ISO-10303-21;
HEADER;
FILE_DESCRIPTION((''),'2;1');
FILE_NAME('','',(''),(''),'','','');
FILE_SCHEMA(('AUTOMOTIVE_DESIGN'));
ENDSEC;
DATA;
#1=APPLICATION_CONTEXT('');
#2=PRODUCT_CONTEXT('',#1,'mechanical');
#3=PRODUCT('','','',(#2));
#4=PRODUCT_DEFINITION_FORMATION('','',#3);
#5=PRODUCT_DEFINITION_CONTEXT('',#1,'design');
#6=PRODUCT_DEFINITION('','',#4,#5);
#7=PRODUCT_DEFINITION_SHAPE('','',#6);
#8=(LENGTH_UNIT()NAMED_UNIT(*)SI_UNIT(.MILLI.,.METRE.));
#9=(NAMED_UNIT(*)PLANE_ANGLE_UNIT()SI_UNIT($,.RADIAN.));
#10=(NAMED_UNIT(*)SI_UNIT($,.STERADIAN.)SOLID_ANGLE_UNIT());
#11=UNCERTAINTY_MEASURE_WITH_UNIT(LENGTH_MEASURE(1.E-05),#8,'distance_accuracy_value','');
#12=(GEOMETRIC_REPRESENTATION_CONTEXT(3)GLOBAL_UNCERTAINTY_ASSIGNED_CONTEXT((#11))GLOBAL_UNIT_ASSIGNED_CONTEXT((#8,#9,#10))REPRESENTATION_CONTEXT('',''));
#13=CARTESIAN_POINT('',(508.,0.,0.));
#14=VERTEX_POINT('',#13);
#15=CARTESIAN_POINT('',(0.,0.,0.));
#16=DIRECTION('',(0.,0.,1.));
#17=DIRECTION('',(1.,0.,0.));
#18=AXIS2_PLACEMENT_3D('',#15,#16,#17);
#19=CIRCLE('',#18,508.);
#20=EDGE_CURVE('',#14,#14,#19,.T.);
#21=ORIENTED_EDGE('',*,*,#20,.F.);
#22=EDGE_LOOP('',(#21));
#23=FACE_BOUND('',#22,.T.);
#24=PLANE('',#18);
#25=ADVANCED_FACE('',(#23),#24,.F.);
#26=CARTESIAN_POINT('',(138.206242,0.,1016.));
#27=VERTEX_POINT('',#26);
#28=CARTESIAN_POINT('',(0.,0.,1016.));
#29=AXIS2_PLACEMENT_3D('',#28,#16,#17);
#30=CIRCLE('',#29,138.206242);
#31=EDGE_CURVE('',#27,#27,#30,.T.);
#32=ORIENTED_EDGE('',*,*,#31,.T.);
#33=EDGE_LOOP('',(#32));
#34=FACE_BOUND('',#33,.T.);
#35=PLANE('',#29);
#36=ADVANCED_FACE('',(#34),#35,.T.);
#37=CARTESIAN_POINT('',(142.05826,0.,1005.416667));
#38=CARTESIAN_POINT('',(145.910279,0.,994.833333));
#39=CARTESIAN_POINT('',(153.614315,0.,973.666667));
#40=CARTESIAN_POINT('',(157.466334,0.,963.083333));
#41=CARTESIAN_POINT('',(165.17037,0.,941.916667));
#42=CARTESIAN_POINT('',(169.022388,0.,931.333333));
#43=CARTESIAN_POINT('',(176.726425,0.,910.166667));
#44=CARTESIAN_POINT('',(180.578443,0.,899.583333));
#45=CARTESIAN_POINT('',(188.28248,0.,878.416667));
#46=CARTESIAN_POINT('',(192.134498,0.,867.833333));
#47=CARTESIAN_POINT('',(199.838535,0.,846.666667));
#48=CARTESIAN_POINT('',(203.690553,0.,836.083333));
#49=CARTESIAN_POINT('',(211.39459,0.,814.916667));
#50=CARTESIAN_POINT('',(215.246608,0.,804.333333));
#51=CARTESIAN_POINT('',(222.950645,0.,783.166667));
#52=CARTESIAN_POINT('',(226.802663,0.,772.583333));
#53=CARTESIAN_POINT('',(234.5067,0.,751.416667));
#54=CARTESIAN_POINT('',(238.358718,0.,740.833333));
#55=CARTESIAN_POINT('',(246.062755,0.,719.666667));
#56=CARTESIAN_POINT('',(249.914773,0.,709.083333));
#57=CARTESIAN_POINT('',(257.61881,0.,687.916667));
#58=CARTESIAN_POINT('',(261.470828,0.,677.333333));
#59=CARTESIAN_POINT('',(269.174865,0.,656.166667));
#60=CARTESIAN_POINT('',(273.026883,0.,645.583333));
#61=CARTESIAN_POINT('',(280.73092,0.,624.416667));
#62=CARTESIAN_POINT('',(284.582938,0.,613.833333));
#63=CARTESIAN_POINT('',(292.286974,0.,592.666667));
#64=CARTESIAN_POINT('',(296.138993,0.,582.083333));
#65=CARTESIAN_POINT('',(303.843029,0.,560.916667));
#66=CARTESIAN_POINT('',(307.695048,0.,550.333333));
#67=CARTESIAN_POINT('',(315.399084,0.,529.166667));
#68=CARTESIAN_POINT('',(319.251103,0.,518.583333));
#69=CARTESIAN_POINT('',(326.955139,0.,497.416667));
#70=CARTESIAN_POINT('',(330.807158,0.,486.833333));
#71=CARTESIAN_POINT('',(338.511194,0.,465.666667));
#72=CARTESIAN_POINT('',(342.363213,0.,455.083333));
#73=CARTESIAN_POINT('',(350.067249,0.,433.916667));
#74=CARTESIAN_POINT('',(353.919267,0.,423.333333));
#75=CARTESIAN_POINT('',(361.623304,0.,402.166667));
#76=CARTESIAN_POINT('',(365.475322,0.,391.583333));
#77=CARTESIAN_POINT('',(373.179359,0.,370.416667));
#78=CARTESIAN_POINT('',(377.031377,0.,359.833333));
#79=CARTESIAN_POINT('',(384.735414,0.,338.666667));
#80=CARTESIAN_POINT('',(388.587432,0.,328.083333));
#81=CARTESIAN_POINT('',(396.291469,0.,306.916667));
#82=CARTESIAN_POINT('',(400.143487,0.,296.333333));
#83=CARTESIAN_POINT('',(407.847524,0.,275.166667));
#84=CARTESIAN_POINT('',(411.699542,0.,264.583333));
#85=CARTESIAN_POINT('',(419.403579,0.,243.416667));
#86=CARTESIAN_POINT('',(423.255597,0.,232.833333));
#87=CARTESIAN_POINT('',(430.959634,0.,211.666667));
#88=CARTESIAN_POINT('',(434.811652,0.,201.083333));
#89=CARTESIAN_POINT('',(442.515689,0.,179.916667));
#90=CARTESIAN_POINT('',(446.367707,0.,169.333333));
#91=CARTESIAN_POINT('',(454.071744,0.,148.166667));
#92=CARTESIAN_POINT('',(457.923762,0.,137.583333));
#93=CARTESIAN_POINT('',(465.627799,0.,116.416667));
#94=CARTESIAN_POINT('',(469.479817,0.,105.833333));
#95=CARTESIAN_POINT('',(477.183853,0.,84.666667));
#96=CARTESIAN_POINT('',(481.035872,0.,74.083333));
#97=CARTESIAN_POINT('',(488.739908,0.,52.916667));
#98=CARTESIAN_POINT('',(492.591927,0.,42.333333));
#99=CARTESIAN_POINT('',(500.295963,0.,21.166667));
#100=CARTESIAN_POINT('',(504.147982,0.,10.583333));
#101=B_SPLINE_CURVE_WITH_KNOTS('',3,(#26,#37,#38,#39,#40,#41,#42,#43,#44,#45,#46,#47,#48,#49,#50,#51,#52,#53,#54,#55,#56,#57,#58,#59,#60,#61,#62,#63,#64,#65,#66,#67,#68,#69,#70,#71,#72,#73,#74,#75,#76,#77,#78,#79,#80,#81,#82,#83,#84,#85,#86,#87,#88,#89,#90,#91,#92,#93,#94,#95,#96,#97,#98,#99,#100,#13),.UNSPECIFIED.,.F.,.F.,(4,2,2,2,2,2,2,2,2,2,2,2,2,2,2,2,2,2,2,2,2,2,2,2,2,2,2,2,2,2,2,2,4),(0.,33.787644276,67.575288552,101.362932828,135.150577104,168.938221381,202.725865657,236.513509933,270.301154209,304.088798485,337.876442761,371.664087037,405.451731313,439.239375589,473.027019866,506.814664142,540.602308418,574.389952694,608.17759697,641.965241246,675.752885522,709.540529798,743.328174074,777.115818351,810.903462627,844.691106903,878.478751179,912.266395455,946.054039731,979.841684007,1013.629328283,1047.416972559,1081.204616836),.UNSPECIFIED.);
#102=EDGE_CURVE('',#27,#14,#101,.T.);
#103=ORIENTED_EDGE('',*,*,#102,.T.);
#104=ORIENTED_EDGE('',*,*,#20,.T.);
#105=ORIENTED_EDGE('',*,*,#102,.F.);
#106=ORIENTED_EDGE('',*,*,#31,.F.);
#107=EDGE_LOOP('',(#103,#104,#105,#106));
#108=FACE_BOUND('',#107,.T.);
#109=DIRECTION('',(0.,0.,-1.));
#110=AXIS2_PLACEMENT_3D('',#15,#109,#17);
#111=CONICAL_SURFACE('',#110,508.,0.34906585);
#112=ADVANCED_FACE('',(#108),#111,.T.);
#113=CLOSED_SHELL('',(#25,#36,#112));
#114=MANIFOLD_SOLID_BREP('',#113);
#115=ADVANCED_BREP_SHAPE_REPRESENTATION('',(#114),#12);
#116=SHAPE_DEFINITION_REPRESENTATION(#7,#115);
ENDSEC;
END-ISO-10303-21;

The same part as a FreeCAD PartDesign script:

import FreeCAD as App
import Part
import Sketcher

V = App.Vector
Q = App.Units.Quantity

doc = App.newDocument("Part")
body = doc.addObject("PartDesign::Body", "Body")

sketch1 = body.newObject("Sketcher::SketchObject", "Sketch")
sketch1.AttachmentSupport = (doc.getObject("XY_Plane"), [""])
sketch1.MapMode = "FlatFace"
sketch1.addGeometry(Part.Circle(V(0, 0, 0), V(0, 0, 1), 508), False)
sketch1.addConstraint(Sketcher.Constraint("Coincident", 0, 3, -1, 1))
sketch1.addConstraint(Sketcher.Constraint("Diameter", 0, Q("40 in")))
pad1 = body.newObject("PartDesign::Pad", "Pad")
pad1.Profile = sketch1
pad1.Length = Q("40 in")
pad1.TaperAngle = -20

doc.recompute()
